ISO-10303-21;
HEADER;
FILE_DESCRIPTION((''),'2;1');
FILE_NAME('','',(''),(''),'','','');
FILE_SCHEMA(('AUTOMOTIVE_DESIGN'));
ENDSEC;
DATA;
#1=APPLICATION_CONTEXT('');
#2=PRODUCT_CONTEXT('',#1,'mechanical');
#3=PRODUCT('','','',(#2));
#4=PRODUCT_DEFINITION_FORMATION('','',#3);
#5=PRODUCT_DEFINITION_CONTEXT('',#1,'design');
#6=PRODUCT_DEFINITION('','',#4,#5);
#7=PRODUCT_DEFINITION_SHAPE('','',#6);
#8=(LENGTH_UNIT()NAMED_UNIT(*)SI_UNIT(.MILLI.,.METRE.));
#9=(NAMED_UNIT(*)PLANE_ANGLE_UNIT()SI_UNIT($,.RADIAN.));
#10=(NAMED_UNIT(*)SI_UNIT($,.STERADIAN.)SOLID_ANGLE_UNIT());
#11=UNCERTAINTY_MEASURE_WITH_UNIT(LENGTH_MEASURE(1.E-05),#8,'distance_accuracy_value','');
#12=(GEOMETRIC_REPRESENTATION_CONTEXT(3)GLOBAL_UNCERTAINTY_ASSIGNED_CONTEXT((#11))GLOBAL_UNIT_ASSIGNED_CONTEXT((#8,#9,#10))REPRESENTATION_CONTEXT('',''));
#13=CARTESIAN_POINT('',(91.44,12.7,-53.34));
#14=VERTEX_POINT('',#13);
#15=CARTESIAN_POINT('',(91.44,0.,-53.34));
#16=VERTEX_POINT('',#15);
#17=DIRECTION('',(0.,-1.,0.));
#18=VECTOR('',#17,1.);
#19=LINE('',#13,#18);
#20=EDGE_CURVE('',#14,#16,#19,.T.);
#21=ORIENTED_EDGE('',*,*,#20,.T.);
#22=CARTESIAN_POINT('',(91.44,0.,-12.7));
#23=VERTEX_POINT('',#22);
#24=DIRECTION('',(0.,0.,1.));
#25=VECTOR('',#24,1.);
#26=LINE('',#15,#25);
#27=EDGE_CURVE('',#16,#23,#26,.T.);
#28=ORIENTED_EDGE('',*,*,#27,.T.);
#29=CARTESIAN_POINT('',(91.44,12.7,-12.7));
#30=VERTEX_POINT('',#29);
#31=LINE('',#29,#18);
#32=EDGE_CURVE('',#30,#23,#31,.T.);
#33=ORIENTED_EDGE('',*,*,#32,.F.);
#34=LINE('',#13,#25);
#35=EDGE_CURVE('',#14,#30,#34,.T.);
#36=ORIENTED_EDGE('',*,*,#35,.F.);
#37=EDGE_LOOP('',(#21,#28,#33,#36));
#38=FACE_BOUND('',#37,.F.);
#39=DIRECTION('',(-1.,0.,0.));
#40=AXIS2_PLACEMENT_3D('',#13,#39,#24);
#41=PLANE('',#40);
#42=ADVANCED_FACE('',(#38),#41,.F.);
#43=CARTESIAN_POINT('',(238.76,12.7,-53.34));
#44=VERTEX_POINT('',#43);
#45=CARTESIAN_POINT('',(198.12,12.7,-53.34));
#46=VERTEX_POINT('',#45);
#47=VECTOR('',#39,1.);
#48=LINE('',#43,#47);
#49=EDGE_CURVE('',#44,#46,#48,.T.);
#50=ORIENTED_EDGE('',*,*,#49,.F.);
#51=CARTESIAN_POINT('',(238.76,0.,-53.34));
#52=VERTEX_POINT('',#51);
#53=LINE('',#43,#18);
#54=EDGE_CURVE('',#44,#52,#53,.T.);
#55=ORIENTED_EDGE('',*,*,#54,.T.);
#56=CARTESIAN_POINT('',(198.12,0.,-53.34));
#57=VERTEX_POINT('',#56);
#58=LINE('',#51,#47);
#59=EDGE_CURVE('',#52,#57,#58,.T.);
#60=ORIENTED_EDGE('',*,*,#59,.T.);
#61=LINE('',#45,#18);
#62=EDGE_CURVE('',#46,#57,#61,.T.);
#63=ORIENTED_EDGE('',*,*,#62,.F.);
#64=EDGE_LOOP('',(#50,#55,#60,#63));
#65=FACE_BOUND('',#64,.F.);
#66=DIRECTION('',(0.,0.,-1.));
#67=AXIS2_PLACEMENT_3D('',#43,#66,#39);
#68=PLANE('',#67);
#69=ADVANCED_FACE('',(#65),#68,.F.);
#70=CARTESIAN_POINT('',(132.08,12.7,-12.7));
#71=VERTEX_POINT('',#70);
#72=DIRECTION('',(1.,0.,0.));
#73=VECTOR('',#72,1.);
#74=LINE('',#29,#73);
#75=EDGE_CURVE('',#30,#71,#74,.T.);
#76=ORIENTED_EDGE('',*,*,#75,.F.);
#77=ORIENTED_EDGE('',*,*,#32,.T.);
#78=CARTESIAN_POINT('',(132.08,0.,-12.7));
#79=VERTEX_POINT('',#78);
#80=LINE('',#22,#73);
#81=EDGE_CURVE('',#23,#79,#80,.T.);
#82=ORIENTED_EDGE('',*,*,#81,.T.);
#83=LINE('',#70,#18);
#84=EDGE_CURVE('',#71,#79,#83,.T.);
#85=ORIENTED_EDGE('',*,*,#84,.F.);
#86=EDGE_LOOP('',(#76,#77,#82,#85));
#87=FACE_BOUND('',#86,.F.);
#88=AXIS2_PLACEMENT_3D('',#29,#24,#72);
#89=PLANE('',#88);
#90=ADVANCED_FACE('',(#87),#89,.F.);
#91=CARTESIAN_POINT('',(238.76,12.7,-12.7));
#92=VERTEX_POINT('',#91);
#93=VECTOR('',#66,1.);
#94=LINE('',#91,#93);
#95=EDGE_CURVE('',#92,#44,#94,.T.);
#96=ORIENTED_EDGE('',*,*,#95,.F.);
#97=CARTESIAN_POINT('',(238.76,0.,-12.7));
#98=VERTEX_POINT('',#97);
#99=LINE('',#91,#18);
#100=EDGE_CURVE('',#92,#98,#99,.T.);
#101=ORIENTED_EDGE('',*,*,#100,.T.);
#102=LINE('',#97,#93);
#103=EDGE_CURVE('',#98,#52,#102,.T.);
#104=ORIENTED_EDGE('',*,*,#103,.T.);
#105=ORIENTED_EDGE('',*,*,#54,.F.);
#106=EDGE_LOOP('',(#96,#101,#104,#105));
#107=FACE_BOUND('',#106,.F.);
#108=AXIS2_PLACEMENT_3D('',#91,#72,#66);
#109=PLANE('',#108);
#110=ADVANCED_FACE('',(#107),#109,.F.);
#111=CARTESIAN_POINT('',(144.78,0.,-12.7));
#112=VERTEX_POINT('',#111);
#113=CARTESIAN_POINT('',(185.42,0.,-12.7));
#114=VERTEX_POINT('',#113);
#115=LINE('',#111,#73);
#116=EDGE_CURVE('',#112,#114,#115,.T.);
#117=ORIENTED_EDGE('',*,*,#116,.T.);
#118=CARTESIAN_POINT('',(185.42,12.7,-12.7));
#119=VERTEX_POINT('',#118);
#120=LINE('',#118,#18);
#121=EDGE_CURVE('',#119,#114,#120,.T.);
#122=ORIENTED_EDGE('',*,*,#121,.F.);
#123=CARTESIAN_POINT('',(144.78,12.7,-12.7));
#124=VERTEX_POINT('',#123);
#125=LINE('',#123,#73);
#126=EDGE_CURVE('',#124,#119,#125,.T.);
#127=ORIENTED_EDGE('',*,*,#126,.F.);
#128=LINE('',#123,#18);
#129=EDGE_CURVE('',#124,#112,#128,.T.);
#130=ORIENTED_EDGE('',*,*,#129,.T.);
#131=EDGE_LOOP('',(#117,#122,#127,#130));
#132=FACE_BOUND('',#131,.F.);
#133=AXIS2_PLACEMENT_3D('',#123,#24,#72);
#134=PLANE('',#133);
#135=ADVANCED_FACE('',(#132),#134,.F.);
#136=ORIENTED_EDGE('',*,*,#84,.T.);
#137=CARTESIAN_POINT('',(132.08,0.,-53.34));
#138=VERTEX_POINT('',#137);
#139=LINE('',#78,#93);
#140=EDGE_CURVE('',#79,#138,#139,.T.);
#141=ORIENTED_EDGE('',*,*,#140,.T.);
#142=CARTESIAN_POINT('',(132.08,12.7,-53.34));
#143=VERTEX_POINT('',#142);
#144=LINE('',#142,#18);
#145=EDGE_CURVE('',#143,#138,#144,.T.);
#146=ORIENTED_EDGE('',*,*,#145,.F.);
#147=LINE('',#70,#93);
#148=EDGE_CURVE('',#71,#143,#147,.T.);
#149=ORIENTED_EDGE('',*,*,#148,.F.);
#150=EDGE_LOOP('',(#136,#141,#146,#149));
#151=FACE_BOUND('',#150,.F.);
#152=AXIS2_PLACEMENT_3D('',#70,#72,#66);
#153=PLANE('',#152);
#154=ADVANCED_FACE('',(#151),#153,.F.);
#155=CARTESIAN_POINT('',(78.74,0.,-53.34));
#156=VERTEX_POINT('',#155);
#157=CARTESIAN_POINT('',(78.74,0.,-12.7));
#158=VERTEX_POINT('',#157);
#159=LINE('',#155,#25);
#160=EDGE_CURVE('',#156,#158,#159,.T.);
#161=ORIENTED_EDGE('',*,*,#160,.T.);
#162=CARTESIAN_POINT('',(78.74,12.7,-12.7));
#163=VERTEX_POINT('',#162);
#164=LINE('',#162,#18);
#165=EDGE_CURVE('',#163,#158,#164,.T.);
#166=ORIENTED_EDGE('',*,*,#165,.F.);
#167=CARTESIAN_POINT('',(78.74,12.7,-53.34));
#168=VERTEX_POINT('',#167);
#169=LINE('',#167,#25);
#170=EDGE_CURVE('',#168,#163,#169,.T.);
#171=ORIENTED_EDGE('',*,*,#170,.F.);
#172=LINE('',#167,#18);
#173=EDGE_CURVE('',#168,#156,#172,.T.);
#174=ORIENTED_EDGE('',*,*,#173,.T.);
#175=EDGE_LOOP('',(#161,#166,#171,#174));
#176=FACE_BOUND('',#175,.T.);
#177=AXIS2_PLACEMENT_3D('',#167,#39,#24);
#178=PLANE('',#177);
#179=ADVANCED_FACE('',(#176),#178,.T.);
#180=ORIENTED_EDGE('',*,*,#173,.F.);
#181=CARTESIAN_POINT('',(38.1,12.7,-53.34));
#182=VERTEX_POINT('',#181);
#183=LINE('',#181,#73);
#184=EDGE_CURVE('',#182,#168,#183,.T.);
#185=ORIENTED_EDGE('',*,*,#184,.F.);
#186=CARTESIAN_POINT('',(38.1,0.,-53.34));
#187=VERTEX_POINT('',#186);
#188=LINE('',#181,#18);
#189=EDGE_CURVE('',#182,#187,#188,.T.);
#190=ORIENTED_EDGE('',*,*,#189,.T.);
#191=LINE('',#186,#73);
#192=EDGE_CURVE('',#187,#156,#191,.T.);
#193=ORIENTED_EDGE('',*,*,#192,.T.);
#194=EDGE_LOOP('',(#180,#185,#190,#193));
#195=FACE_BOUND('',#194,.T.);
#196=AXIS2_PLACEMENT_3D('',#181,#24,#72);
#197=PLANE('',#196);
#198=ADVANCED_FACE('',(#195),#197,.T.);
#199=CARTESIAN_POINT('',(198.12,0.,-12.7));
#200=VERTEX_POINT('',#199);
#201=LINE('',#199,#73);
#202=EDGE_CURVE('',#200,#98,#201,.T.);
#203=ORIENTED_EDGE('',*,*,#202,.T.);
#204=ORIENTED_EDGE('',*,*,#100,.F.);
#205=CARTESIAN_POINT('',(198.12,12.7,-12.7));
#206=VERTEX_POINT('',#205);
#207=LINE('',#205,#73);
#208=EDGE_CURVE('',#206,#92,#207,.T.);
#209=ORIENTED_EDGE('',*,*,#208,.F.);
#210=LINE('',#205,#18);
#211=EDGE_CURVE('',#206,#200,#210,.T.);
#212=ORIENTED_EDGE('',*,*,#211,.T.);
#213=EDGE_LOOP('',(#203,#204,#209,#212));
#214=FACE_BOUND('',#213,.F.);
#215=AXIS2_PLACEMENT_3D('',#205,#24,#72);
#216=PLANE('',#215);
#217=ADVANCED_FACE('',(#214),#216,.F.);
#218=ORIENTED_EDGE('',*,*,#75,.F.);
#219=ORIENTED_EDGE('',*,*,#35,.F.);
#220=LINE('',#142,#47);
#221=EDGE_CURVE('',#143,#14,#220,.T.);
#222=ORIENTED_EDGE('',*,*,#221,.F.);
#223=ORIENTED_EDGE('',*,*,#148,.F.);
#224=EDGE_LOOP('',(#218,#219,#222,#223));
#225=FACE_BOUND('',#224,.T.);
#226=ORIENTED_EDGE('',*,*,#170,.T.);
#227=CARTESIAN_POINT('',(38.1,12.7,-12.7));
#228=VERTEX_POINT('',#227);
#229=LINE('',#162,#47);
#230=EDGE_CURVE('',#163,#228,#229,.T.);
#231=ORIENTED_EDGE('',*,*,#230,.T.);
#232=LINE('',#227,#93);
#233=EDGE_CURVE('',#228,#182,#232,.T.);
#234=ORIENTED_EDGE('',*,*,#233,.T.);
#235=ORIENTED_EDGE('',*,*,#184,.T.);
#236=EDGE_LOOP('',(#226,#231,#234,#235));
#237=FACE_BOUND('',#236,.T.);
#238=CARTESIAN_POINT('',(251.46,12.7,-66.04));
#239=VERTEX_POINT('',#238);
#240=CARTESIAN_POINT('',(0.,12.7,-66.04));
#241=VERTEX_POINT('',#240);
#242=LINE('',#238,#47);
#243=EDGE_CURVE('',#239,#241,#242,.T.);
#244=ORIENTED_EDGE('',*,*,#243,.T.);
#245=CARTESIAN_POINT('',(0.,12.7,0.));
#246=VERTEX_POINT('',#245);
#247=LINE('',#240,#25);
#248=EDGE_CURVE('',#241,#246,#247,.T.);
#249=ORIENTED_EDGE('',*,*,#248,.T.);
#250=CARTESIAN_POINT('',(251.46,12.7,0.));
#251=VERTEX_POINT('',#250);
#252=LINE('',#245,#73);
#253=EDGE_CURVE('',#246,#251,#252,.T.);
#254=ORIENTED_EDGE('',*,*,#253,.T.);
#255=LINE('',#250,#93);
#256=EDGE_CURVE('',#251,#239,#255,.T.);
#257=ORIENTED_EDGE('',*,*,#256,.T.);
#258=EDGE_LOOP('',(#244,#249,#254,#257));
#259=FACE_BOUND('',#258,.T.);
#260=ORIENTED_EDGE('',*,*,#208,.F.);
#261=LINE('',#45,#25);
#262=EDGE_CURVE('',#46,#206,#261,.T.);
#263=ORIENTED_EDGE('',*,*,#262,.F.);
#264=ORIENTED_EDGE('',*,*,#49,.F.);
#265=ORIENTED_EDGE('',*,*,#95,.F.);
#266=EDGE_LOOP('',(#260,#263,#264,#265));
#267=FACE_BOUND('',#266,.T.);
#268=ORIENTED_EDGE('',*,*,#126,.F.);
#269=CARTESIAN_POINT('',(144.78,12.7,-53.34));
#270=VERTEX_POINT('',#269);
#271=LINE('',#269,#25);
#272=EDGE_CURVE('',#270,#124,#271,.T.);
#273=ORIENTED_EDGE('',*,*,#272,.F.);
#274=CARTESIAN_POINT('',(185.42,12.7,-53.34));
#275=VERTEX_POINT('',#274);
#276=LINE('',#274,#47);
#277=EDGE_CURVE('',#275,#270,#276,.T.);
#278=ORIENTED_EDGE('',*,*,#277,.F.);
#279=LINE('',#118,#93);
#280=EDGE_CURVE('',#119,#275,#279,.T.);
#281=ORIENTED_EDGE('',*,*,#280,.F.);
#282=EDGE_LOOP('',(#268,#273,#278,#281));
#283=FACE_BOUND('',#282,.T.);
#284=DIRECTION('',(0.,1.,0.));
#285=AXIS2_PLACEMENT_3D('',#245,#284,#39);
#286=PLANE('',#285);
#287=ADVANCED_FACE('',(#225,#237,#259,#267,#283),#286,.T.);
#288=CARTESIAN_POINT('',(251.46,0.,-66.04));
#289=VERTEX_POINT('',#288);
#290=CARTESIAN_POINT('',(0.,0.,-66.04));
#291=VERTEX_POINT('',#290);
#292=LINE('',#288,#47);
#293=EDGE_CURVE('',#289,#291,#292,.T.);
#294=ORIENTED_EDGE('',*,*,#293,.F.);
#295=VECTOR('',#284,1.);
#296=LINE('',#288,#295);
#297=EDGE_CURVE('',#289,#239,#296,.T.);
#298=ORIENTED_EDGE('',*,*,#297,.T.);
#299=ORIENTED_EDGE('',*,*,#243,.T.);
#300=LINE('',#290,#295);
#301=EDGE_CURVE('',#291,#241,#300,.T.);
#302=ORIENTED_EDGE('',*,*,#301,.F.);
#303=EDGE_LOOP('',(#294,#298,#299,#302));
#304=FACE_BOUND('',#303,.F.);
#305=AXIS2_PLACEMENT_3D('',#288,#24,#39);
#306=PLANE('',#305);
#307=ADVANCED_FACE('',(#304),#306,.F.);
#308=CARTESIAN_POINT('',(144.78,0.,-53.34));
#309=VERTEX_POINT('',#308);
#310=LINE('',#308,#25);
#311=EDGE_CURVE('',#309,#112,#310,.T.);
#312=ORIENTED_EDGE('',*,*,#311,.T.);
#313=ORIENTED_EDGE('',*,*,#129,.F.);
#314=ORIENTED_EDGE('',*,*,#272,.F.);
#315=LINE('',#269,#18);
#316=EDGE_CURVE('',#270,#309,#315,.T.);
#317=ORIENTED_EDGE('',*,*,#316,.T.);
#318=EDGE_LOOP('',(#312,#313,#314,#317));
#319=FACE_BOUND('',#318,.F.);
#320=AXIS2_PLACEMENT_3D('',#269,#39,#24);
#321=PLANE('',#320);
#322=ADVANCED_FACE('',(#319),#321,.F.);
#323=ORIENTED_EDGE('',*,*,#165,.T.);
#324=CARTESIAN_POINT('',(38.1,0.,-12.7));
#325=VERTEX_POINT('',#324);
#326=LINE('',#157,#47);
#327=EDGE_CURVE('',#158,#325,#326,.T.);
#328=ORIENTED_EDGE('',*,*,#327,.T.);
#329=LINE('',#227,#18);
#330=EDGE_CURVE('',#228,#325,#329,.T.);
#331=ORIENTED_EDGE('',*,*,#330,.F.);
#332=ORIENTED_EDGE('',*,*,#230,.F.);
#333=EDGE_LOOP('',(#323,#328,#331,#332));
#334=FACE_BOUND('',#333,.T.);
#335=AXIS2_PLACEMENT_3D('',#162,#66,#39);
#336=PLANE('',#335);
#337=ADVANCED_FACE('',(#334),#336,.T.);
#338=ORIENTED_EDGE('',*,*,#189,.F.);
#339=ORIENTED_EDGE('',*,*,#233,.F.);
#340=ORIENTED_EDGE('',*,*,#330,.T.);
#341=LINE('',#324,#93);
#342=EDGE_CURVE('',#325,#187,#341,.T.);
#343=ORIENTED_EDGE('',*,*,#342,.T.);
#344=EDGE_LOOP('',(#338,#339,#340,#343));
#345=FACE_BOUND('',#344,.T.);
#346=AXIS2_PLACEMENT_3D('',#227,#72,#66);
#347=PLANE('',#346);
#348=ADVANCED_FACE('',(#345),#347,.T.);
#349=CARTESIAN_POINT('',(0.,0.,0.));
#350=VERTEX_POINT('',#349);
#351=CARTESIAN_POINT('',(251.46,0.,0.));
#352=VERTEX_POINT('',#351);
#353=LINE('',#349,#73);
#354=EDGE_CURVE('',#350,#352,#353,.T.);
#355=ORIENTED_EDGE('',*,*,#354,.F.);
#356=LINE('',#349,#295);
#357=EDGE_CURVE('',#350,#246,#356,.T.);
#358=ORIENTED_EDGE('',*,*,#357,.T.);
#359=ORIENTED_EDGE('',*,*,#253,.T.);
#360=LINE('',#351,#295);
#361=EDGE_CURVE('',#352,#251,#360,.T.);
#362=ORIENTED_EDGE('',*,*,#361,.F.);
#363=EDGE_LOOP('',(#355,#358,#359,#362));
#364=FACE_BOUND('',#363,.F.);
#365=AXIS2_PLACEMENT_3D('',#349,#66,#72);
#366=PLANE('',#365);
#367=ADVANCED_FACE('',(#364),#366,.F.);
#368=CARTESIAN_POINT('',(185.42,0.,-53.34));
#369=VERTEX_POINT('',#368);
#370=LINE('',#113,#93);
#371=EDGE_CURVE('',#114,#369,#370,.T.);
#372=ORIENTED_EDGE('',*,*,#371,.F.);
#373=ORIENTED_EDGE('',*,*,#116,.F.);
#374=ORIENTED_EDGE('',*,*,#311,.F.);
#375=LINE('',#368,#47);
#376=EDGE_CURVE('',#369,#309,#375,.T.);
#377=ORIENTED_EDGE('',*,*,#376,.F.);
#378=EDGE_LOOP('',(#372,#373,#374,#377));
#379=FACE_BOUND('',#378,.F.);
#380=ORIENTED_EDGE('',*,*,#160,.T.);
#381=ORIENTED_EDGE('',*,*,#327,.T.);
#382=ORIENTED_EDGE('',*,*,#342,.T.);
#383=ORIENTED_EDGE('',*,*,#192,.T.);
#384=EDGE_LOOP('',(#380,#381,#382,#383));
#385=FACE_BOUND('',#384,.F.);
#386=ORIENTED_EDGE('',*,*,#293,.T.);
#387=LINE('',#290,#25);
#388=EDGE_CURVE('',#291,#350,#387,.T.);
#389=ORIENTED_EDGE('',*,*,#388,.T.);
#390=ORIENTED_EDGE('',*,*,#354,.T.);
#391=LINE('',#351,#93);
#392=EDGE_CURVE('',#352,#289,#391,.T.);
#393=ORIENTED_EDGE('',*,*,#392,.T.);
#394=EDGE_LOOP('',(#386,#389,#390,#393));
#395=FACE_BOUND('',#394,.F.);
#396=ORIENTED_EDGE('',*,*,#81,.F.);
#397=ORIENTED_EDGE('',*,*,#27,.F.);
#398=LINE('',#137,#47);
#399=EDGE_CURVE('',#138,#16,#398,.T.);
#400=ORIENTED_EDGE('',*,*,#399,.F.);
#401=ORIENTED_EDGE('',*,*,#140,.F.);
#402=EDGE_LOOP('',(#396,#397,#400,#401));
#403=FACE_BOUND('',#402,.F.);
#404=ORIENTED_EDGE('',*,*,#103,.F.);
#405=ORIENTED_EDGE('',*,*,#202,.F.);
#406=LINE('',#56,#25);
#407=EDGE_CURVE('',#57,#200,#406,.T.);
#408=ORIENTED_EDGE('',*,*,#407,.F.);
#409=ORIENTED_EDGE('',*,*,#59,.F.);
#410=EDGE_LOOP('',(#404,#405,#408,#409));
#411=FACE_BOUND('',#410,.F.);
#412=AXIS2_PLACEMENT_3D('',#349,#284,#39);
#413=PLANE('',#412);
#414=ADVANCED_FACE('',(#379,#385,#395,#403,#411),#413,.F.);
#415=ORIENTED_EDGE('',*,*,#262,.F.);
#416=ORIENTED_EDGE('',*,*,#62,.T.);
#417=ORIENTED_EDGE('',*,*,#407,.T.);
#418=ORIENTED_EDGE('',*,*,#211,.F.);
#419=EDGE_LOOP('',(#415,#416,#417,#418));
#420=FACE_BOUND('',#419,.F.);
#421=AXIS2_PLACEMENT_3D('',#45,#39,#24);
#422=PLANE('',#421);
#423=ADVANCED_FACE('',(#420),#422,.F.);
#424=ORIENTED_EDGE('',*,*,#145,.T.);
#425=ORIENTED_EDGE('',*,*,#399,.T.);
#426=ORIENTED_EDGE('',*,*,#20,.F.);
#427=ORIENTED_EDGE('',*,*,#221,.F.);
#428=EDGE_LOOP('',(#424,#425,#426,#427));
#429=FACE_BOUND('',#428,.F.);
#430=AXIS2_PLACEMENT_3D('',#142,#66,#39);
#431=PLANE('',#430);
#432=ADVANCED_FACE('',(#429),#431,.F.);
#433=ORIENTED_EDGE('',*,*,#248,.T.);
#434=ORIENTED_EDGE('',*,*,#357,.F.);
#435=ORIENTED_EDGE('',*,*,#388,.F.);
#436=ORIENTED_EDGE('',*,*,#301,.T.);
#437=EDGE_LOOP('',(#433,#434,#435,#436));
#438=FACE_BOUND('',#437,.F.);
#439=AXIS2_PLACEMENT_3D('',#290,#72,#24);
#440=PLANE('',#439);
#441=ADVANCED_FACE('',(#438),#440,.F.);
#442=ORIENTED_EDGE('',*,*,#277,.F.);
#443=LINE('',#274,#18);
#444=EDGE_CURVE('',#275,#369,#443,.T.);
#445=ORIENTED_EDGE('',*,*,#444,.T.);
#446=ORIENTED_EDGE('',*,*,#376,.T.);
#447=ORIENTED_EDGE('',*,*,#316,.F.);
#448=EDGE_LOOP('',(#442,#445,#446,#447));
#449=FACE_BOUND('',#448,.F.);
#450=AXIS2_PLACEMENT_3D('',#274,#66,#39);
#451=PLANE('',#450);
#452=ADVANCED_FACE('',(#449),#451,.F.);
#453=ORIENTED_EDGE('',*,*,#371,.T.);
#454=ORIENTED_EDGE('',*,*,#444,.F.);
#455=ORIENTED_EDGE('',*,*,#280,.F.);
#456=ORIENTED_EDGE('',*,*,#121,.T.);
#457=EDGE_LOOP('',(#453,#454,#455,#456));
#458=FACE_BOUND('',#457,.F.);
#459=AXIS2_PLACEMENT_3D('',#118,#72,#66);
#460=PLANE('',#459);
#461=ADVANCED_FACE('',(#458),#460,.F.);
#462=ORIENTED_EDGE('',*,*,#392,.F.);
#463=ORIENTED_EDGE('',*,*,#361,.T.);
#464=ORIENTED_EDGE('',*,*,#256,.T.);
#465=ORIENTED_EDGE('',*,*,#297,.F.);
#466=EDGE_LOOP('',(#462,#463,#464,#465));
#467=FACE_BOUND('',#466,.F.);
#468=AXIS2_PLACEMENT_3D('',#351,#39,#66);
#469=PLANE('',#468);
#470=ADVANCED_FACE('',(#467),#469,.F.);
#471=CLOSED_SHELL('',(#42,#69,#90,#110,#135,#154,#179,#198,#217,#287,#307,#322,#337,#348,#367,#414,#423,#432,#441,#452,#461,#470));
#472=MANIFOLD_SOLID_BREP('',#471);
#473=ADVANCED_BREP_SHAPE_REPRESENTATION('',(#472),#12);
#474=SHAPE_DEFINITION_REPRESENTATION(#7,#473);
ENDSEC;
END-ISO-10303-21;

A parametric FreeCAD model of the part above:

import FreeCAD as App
import Part
import Sketcher
Q = App.Units.Quantity

doc = App.newDocument("Part")
body = doc.addObject("PartDesign::Body", "Body")

# Sketch on XZ plane
sketch1 = doc.addObject("Sketcher::SketchObject", "Sketch")
body.addObject(sketch1)
sketch1.AttachmentSupport = (doc.XZ_Plane, [""])
sketch1.MapMode = "FlatFace"
sketch1.addGeometry([
    Part.LineSegment(App.Vector(0, -66, 0), App.Vector(0, 0, 0)),
    Part.LineSegment(App.Vector(0, 0, 0), App.Vector(251, 0, 0)),
    Part.LineSegment(App.Vector(251, 0, 0), App.Vector(251, -66, 0)),
    Part.LineSegment(App.Vector(251, -66, 0), App.Vector(0, -66, 0)),
], False)
sketch1.addConstraint([
    Sketcher.Constraint("Coincident", 0, 2, 1, 1),
    Sketcher.Constraint("Coincident", 1, 2, 2, 1),
    Sketcher.Constraint("Coincident", 2, 2, 3, 1),
    Sketcher.Constraint("Coincident", 3, 2, 0, 1),
    Sketcher.Constraint("Vertical", 0),
    Sketcher.Constraint("Horizontal", 1),
    Sketcher.Constraint("Vertical", 2),
    Sketcher.Constraint("Horizontal", 3),
    Sketcher.Constraint("Coincident", 0, 2, -1, 1),
    Sketcher.Constraint("DistanceX", 1, 1, 1, 2, Q("9.9 in")),
    Sketcher.Constraint("DistanceY", 0, 1, 0, 2, Q("2.6 in")),
])
pad1 = doc.addObject("PartDesign::Pad", "Pad")
body.addObject(pad1)
pad1.Profile = sketch1
pad1.Length = Q("0.5 in")
pad1.Reversed = True

# Sketch on XZ plane
sketch2 = doc.addObject("Sketcher::SketchObject", "Sketch001")
body.addObject(sketch2)
sketch2.AttachmentSupport = (doc.XZ_Plane, [""])
sketch2.MapMode = "FlatFace"
sketch2.AttachmentOffset = App.Placement(App.Vector(0, 0, -0.5 * 25.4), App.Rotation())
sketch2.addGeometry([
    Part.LineSegment(App.Vector(198, -53, 0), App.Vector(198, -13, 0)),  # 0
    Part.LineSegment(App.Vector(198, -13, 0), App.Vector(239, -13, 0)),  # 1
    Part.LineSegment(App.Vector(239, -13, 0), App.Vector(239, -53, 0)),  # 2
    Part.LineSegment(App.Vector(239, -53, 0), App.Vector(198, -53, 0)),  # 3
    Part.LineSegment(App.Vector(145, -53, 0), App.Vector(145, -13, 0)),  # 4
    Part.LineSegment(App.Vector(145, -13, 0), App.Vector(185, -13, 0)),  # 5
    Part.LineSegment(App.Vector(185, -13, 0), App.Vector(185, -53, 0)),  # 6
    Part.LineSegment(App.Vector(185, -53, 0), App.Vector(145, -53, 0)),  # 7
    Part.LineSegment(App.Vector(91, -53, 0), App.Vector(91, -13, 0)),  # 8
    Part.LineSegment(App.Vector(91, -13, 0), App.Vector(132, -13, 0)),  # 9
    Part.LineSegment(App.Vector(132, -13, 0), App.Vector(132, -53, 0)),  # 10
    Part.LineSegment(App.Vector(132, -53, 0), App.Vector(91, -53, 0)),  # 11
    Part.LineSegment(App.Vector(38, -13, 0), App.Vector(79, -13, 0)),  # 12
    Part.LineSegment(App.Vector(79, -13, 0), App.Vector(79, -53, 0)),  # 13
    Part.LineSegment(App.Vector(79, -53, 0), App.Vector(38, -53, 0)),  # 14
    Part.LineSegment(App.Vector(38, -53, 0), App.Vector(38, -13, 0)),  # 15
], False)
sketch2.addConstraint([
    Sketcher.Constraint("Coincident", 0, 2, 1, 1),
    Sketcher.Constraint("Coincident", 1, 2, 2, 1),
    Sketcher.Constraint("Coincident", 2, 2, 3, 1),
    Sketcher.Constraint("Coincident", 3, 2, 0, 1),
    Sketcher.Constraint("Coincident", 4, 2, 5, 1),
    Sketcher.Constraint("Coincident", 5, 2, 6, 1),
    Sketcher.Constraint("Coincident", 6, 2, 7, 1),
    Sketcher.Constraint("Coincident", 7, 2, 4, 1),
    Sketcher.Constraint("Coincident", 8, 2, 9, 1),
    Sketcher.Constraint("Coincident", 9, 2, 10, 1),
    Sketcher.Constraint("Coincident", 10, 2, 11, 1),
    Sketcher.Constraint("Coincident", 11, 2, 8, 1),
    Sketcher.Constraint("Coincident", 12, 2, 13, 1),
    Sketcher.Constraint("Coincident", 13, 2, 14, 1),
    Sketcher.Constraint("Coincident", 14, 2, 15, 1),
    Sketcher.Constraint("Coincident", 15, 2, 12, 1),
    Sketcher.Constraint("Vertical", 0),
    Sketcher.Constraint("Horizontal", 1),
    Sketcher.Constraint("Vertical", 2),
    Sketcher.Constraint("Horizontal", 3),
    Sketcher.Constraint("Vertical", 4),
    Sketcher.Constraint("Horizontal", 5),
    Sketcher.Constraint("Vertical", 6),
    Sketcher.Constraint("Horizontal", 7),
    Sketcher.Constraint("Vertical", 8),
    Sketcher.Constraint("Horizontal", 9),
    Sketcher.Constraint("Vertical", 10),
    Sketcher.Constraint("Horizontal", 11),
    Sketcher.Constraint("Horizontal", 12),
    Sketcher.Constraint("Vertical", 13),
    Sketcher.Constraint("Horizontal", 14),
    Sketcher.Constraint("Vertical", 15),
    Sketcher.Constraint("Horizontal", 1, 2, 4, 2),
    Sketcher.Constraint("Horizontal", 3, 2, 6, 2),
    Sketcher.Constraint("Horizontal", 5, 2, 8, 2),
    Sketcher.Constraint("Horizontal", 7, 2, 10, 2),
    Sketcher.Constraint("Horizontal", 9, 2, 12, 2),
    Sketcher.Constraint("Horizontal", 11, 2, 13, 2),
    Sketcher.Constraint("Equal", 3, 5),
    Sketcher.Constraint("Equal", 7, 9),
    Sketcher.Constraint("Equal", 11, 12),
    Sketcher.Constraint("Equal", 14, 0),
    Sketcher.Constraint("DistanceX", 1, 1, 1, 2, Q("1.6 in")),
    Sketcher.Constraint("DistanceY", 0, 2, -1, 1, Q("0.5 in")),
    Sketcher.Constraint("DistanceX", 5, 2, 0, 2, Q("0.5 in")),
    Sketcher.Constraint("DistanceX", 9, 2, 4, 2, Q("0.5 in")),
    Sketcher.Constraint("DistanceX", 12, 2, 8, 2, Q("0.5 in")),
    Sketcher.Constraint("DistanceX", -1, 1, 0, 2, Q("7.8 in")),
])
pocket1 = doc.addObject("PartDesign::Pocket", "Pocket")
body.addObject(pocket1)
pocket1.Profile = sketch2
pocket1.Length = Q("0.5 in")
pocket1.Reversed = True

doc.recompute()
